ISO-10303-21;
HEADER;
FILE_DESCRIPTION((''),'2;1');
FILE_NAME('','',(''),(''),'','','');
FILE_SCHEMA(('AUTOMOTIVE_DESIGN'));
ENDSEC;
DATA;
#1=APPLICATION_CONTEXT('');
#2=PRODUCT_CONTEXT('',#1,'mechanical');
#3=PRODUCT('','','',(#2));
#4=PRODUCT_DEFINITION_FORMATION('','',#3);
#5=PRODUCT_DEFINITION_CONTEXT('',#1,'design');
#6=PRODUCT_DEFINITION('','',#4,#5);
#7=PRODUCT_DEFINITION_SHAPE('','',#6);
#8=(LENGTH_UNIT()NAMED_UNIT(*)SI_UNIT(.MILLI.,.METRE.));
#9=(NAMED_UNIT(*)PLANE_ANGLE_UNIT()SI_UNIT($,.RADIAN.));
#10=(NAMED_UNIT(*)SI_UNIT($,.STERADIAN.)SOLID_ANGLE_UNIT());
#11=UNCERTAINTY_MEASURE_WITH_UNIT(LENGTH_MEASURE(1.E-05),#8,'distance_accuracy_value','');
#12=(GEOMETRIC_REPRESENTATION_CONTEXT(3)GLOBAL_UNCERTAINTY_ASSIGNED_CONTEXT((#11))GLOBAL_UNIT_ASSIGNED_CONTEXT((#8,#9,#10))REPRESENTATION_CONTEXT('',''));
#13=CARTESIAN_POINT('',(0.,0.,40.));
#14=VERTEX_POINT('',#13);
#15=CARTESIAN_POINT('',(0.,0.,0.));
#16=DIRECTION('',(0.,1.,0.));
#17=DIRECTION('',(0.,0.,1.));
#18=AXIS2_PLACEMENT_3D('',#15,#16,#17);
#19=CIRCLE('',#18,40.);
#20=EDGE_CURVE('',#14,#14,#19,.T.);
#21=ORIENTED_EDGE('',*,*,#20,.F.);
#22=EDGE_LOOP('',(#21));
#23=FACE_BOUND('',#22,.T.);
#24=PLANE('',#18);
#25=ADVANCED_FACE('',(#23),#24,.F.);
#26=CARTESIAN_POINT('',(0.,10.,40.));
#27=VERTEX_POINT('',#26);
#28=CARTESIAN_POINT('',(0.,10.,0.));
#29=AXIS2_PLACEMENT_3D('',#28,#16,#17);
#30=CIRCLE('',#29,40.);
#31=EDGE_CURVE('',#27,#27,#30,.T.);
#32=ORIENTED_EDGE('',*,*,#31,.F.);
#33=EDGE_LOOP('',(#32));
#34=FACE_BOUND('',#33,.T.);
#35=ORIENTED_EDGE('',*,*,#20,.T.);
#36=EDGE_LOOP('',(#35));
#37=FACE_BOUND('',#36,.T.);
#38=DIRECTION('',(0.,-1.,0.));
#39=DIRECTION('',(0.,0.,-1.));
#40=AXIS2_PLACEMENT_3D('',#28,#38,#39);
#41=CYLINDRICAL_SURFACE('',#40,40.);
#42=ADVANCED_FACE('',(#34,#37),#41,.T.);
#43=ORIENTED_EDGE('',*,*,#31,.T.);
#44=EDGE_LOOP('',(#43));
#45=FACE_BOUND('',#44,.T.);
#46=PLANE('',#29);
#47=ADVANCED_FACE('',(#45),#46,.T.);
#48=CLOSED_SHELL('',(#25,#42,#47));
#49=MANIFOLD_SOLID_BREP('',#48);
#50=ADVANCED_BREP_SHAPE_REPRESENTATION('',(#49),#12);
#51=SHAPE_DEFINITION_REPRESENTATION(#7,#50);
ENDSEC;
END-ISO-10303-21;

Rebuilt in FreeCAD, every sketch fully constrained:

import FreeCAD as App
import Part
import Sketcher

V = App.Vector
Q = App.Units.Quantity

doc = App.newDocument("Part")
body = doc.addObject("PartDesign::Body", "Body")

# Sketch on XZ plane
sketch1 = body.newObject("Sketcher::SketchObject", "Sketch")
sketch1.AttachmentSupport = (doc.getObject("XZ_Plane"), [""])
sketch1.MapMode = "FlatFace"
sketch1.addGeometry(Part.Circle(V(0, 0, 0), V(0, 0, 1), 40), False)
sketch1.addConstraint(Sketcher.Constraint("Coincident", 0, 3, -1, 1))
sketch1.addConstraint(Sketcher.Constraint("Diameter", 0, Q("80 mm")))
pad1 = body.newObject("PartDesign::Pad", "Pad")
pad1.Profile = sketch1
pad1.Length = 10
pad1.Reversed = True

doc.recompute()
